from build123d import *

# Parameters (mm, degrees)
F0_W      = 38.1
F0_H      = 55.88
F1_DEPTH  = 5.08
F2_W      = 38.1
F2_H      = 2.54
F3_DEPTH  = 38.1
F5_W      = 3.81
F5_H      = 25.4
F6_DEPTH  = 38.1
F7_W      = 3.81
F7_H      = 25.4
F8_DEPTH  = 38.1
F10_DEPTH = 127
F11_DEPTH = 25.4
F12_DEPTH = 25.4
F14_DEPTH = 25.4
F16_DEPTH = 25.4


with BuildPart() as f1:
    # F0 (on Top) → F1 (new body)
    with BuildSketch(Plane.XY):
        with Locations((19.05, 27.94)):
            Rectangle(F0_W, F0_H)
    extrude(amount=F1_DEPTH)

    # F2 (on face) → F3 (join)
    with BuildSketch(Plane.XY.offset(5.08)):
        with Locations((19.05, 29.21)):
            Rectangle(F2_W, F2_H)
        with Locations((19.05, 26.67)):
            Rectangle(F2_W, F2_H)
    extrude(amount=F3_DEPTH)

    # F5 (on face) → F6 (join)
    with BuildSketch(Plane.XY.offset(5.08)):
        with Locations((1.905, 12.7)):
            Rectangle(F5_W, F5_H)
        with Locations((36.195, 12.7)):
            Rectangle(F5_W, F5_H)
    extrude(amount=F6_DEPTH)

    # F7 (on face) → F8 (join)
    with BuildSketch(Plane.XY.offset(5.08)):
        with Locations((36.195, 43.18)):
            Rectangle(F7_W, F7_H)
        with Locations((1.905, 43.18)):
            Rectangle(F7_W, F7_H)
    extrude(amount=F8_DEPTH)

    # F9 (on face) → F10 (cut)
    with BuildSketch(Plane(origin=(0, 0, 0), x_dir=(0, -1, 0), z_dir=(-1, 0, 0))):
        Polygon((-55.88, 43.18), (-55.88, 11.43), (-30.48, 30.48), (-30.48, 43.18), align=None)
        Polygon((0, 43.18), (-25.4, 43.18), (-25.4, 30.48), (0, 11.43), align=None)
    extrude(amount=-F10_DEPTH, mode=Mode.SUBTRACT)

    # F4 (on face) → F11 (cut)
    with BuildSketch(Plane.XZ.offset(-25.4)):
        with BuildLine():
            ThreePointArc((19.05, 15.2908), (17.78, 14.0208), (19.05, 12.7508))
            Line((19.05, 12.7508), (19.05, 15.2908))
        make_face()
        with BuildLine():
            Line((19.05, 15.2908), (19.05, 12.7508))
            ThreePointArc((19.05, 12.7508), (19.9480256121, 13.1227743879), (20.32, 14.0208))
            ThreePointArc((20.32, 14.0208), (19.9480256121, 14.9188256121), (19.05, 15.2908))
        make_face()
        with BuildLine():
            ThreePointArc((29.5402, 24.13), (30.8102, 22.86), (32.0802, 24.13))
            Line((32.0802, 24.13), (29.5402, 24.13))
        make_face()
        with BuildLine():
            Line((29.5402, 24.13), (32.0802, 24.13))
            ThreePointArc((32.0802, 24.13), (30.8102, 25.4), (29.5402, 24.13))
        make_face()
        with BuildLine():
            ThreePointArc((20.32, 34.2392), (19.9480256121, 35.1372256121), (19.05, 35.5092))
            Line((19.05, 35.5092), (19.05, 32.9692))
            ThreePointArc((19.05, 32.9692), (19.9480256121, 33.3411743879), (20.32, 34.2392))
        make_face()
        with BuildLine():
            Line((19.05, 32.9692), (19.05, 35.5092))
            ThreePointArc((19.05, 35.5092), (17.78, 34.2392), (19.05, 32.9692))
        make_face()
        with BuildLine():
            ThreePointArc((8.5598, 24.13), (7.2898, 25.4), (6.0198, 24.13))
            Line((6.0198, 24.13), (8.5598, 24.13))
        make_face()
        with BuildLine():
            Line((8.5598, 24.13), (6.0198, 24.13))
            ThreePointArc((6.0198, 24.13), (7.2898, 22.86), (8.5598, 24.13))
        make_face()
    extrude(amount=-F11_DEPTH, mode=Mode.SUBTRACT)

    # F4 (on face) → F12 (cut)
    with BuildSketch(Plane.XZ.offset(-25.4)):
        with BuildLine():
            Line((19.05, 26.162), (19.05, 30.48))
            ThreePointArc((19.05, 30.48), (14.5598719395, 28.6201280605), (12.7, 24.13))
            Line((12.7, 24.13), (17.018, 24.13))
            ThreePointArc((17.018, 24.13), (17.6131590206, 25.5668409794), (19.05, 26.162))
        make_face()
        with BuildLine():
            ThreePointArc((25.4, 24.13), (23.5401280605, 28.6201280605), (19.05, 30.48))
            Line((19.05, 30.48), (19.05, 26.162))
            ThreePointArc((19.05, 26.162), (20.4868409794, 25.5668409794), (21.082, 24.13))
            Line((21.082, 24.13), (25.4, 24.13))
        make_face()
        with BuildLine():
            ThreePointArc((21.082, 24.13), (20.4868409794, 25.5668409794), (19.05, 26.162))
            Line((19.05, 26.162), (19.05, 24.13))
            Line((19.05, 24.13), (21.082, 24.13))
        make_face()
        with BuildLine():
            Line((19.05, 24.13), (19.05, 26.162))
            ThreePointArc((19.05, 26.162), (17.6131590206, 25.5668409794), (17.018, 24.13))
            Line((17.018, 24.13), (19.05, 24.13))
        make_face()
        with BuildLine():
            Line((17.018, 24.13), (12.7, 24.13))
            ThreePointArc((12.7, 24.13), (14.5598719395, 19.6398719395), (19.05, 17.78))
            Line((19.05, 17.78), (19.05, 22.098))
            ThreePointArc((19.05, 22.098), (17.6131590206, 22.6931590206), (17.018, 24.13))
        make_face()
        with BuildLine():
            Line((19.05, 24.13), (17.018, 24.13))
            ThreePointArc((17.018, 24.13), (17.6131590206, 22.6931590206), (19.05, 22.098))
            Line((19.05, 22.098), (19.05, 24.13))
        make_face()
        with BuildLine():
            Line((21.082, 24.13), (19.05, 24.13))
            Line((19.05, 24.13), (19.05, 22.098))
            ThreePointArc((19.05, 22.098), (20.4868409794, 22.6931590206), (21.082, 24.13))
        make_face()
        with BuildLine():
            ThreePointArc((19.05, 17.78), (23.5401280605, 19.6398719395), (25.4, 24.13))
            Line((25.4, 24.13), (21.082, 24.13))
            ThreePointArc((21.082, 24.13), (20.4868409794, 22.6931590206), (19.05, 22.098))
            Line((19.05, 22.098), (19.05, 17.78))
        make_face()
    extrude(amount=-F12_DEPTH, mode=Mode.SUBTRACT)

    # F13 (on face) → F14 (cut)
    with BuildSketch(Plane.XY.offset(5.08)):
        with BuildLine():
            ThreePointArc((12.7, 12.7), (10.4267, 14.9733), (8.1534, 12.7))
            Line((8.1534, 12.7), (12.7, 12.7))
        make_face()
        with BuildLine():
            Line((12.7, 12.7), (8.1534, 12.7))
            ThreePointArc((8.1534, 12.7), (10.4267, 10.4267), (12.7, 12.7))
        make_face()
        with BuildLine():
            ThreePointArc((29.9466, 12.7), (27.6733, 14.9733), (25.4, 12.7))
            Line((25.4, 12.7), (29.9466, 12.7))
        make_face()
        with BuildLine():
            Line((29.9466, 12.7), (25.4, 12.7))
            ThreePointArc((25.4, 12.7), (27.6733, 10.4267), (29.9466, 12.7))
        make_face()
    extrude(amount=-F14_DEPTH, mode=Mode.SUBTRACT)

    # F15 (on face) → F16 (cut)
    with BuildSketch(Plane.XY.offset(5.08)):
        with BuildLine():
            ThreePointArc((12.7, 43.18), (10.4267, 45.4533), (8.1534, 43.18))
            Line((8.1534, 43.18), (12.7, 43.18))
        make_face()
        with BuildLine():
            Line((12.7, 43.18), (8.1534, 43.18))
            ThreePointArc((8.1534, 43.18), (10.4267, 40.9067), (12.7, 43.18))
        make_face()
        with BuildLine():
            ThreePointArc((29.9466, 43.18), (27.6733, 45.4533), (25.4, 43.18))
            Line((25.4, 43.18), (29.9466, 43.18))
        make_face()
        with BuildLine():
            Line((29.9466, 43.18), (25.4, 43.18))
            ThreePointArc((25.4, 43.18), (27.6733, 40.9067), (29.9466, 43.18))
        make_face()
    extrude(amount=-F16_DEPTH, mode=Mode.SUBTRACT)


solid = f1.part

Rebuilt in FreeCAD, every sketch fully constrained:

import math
import FreeCAD as App
import Part
import Sketcher

V = App.Vector
Q = App.Units.Quantity


def add_polygon(sketch, points):
    """Adds a closed chain of lines whose ends are joined by coincident constraints."""
    first, n = sketch.GeometryCount, len(points)
    for a, b in zip(points, points[1:] + points[:1]):
        sketch.addGeometry(Part.LineSegment(App.Vector(*a, 0), App.Vector(*b, 0)), False)
    for i in range(n):
        sketch.addConstraint(Sketcher.Constraint("Coincident", first + i, 2, first + (i + 1) % n, 1))

doc = App.newDocument("Part")
body = doc.addObject("PartDesign::Body", "Body")

sketch1 = doc.addObject("Sketcher::SketchObject", "Sketch")
body.addObject(sketch1)
sketch1.AttachmentSupport = (doc.XY_Plane, [""])
sketch1.MapMode = "FlatFace"
add_polygon(sketch1, [(0, 56), (0, 0), (38, 0), (38, 56)])
sketch1.addConstraint(Sketcher.Constraint("Vertical", 0))
sketch1.addConstraint(Sketcher.Constraint("Horizontal", 1))
sketch1.addConstraint(Sketcher.Constraint("Vertical", 2))
sketch1.addConstraint(Sketcher.Constraint("Horizontal", 3))
sketch1.addConstraint(Sketcher.Constraint("Coincident", 0, 2, -1, 1))
sketch1.addConstraint(Sketcher.Constraint("DistanceX", 1, 1, 1, 2, Q("1.5 in")))
sketch1.addConstraint(Sketcher.Constraint("DistanceY", 0, 2, 0, 1, Q("2.2 in")))
pad1 = doc.addObject("PartDesign::Pad", "Pad")
body.addObject(pad1)
pad1.Profile = sketch1
pad1.Length = Q("0.2 in")

sketch2 = doc.addObject("Sketcher::SketchObject", "Sketch001")
body.addObject(sketch2)
sketch2.AttachmentSupport = (doc.XY_Plane, [""])
sketch2.MapMode = "FlatFace"
sketch2.AttachmentOffset = App.Placement(V(0, 0, 0.2 * 25.4), App.Rotation())
add_polygon(sketch2, [(0, 30), (0, 25), (38, 25), (38, 30)])
sketch2.addConstraint(Sketcher.Constraint("Vertical", 0))
sketch2.addConstraint(Sketcher.Constraint("Horizontal", 1))
sketch2.addConstraint(Sketcher.Constraint("Vertical", 2))
sketch2.addConstraint(Sketcher.Constraint("Horizontal", 3))
sketch2.addConstraint(Sketcher.Constraint("PointOnObject", 0, 2, -2))
sketch2.addConstraint(Sketcher.Constraint("DistanceX", 1, 1, 1, 2, Q("1.5 in")))
sketch2.addConstraint(Sketcher.Constraint("DistanceY", 0, 2, 0, 1, Q("0.2 in")))
sketch2.addConstraint(Sketcher.Constraint("DistanceY", -1, 1, 0, 2, Q("1 in")))
pad2 = doc.addObject("PartDesign::Pad", "Pad001")
body.addObject(pad2)
pad2.Profile = sketch2
pad2.Length = Q("1.5 in")

sketch3 = doc.addObject("Sketcher::SketchObject", "Sketch002")
body.addObject(sketch3)
sketch3.AttachmentSupport = (doc.XY_Plane, [""])
sketch3.MapMode = "FlatFace"
sketch3.AttachmentOffset = App.Placement(V(0, 0, 0.2 * 25.4), App.Rotation())
add_polygon(sketch3, [(0, 25.4), (0, 0), (3.8, 0), (3.8, 25.4)])
add_polygon(sketch3, [(34.3, 25.4), (34.3, 0), (38.1, 0), (38.1, 25.4)])
sketch3.addConstraint(Sketcher.Constraint("Vertical", 0))
sketch3.addConstraint(Sketcher.Constraint("Horizontal", 1))
sketch3.addConstraint(Sketcher.Constraint("Vertical", 2))
sketch3.addConstraint(Sketcher.Constraint("Horizontal", 3))
sketch3.addConstraint(Sketcher.Constraint("Vertical", 4))
sketch3.addConstraint(Sketcher.Constraint("Horizontal", 5))
sketch3.addConstraint(Sketcher.Constraint("Vertical", 6))
sketch3.addConstraint(Sketcher.Constraint("Horizontal", 7))
sketch3.addConstraint(Sketcher.Constraint("Coincident", 0, 2, -1, 1))
sketch3.addConstraint(Sketcher.Constraint("PointOnObject", 4, 2, -1))
sketch3.addConstraint(Sketcher.Constraint("Horizontal", 3, 2, 6, 2))
sketch3.addConstraint(Sketcher.Constraint("Equal", 3, 5))
sketch3.addConstraint(Sketcher.Constraint("DistanceY", 0, 2, 0, 1, Q("1 in")))
sketch3.addConstraint(Sketcher.Constraint("DistanceX", 1, 1, 1, 2, Q("0.15 in")))
sketch3.addConstraint(Sketcher.Constraint("DistanceX", -1, 1, 5, 2, Q("1.5 in")))
pad3 = doc.addObject("PartDesign::Pad", "Pad002")
body.addObject(pad3)
pad3.Profile = sketch3
pad3.Length = Q("1.5 in")

sketch4 = doc.addObject("Sketcher::SketchObject", "Sketch003")
body.addObject(sketch4)
sketch4.AttachmentSupport = (doc.XY_Plane, [""])
sketch4.MapMode = "FlatFace"
sketch4.AttachmentOffset = App.Placement(V(0, 0, 0.2 * 25.4), App.Rotation())
add_polygon(sketch4, [(34.3, 55.9), (34.3, 30.5), (38.1, 30.5), (38.1, 55.9)])
add_polygon(sketch4, [(0, 55.9), (0, 30.5), (3.8, 30.5), (3.8, 55.9)])
sketch4.addConstraint(Sketcher.Constraint("Vertical", 0))
sketch4.addConstraint(Sketcher.Constraint("Horizontal", 1))
sketch4.addConstraint(Sketcher.Constraint("Vertical", 2))
sketch4.addConstraint(Sketcher.Constraint("Horizontal", 3))
sketch4.addConstraint(Sketcher.Constraint("Vertical", 4))
sketch4.addConstraint(Sketcher.Constraint("Horizontal", 5))
sketch4.addConstraint(Sketcher.Constraint("Vertical", 6))
sketch4.addConstraint(Sketcher.Constraint("Horizontal", 7))
sketch4.addConstraint(Sketcher.Constraint("PointOnObject", 4, 2, -2))
sketch4.addConstraint(Sketcher.Constraint("Horizontal", 1, 2, 4, 2))
sketch4.addConstraint(Sketcher.Constraint("Horizontal", 3, 2, 6, 2))
sketch4.addConstraint(Sketcher.Constraint("Equal", 3, 5))
sketch4.addConstraint(Sketcher.Constraint("DistanceY", 0, 2, 0, 1, Q("1 in")))
sketch4.addConstraint(Sketcher.Constraint("DistanceX", 1, 1, 1, 2, Q("0.15 in")))
sketch4.addConstraint(Sketcher.Constraint("DistanceY", -1, 1, 0, 2, Q("1.2 in")))
sketch4.addConstraint(Sketcher.Constraint("DistanceX", -1, 1, 1, 2, Q("1.5 in")))
pad4 = doc.addObject("PartDesign::Pad", "Pad003")
body.addObject(pad4)
pad4.Profile = sketch4
pad4.Length = Q("1.5 in")

sketch5 = doc.addObject("Sketcher::SketchObject", "Sketch004")
body.addObject(sketch5)
sketch5.AttachmentSupport = (doc.YZ_Plane, [""])
sketch5.MapMode = "FlatFace"
add_polygon(sketch5, [(56, 43), (56, 11), (30, 30), (30, 43)])
add_polygon(sketch5, [(0, 43), (25, 43), (25, 30), (0, 11)])
sketch5.addConstraint(Sketcher.Constraint("Vertical", 0))
sketch5.addConstraint(Sketcher.Constraint("Vertical", 2))
sketch5.addConstraint(Sketcher.Constraint("Horizontal", 3))
sketch5.addConstraint(Sketcher.Constraint("Horizontal", 4))
sketch5.addConstraint(Sketcher.Constraint("Vertical", 5))
sketch5.addConstraint(Sketcher.Constraint("Vertical", 7))
sketch5.addConstraint(Sketcher.Constraint("PointOnObject", 6, 2, -2))
sketch5.addConstraint(Sketcher.Constraint("Horizontal", 3, 2, 4, 2))
sketch5.addConstraint(Sketcher.Constraint("Horizontal", 1, 2, 5, 2))
sketch5.addConstraint(Sketcher.Constraint("Horizontal", 0, 2, 6, 2))
sketch5.addConstraint(Sketcher.Constraint("Equal", 3, 4))
sketch5.addConstraint(Sketcher.Constraint("DistanceX", 3, 1, 3, 2, Q("1 in")))
sketch5.addConstraint(Sketcher.Constraint("DistanceY", 2, 1, 2, 2, Q("0.5 in")))
sketch5.addConstraint(Sketcher.Constraint("DistanceY", 0, 2, 0, 1, Q("1.25 in")))
sketch5.addConstraint(Sketcher.Constraint("DistanceX", -1, 1, 0, 2, Q("2.2 in")))
sketch5.addConstraint(Sketcher.Constraint("DistanceY", -1, 1, 1, 2, Q("1.2 in")))
pocket1 = doc.addObject("PartDesign::Pocket", "Pocket")
body.addObject(pocket1)
pocket1.Profile = sketch5
pocket1.Length = Q("5 in")
pocket1.Reversed = True

sketch6 = doc.addObject("Sketcher::SketchObject", "Sketch005")
body.addObject(sketch6)
sketch6.AttachmentSupport = (doc.XZ_Plane, [""])
sketch6.MapMode = "FlatFace"
sketch6.AttachmentOffset = App.Placement(V(0, 0, -1 * 25.4), App.Rotation())
sketch6.addGeometry(Part.ArcOfCircle(Part.Circle(V(19.1, 14, 0), V(0, 0, 1), 1.3), math.radians(90), math.radians(270)), False)
sketch6.addGeometry(Part.ArcOfCircle(Part.Circle(V(19.1, 14, 0), V(0, 0, 1), 1.3), math.radians(-90), math.radians(0)), False)
sketch6.addGeometry(Part.ArcOfCircle(Part.Circle(V(19.1, 14, 0), V(0, 0, 1), 1.3), math.radians(0), math.radians(90)), False)
sketch6.addGeometry(Part.Circle(V(30.8, 24.1, 0), V(0, 0, 1), 1.3), False)
sketch6.addGeometry(Part.ArcOfCircle(Part.Circle(V(19.1, 34.2, 0), V(0, 0, 1), 1.3), math.radians(0), math.radians(90)), False)
sketch6.addGeometry(Part.ArcOfCircle(Part.Circle(V(19.1, 34.2, 0), V(0, 0, 1), 1.3), math.radians(90), math.radians(270)), False)
sketch6.addGeometry(Part.ArcOfCircle(Part.Circle(V(19.1, 34.2, 0), V(0, 0, 1), 1.3), math.radians(-90), math.radians(0)), False)
sketch6.addGeometry(Part.Circle(V(7.3, 24.1, 0), V(0, 0, 1), 1.3), False)
sketch6.addConstraint(Sketcher.Constraint("Tangent", 0, 2, 1, 1))
sketch6.addConstraint(Sketcher.Constraint("Tangent", 1, 2, 2, 1))
sketch6.addConstraint(Sketcher.Constraint("Tangent", 2, 2, 0, 1))
sketch6.addConstraint(Sketcher.Constraint("Tangent", 4, 2, 5, 1))
sketch6.addConstraint(Sketcher.Constraint("Tangent", 5, 2, 6, 1))
sketch6.addConstraint(Sketcher.Constraint("Tangent", 6, 2, 4, 1))
sketch6.addConstraint(Sketcher.Constraint("Equal", 2, 3))
sketch6.addConstraint(Sketcher.Constraint("Equal", 3, 4))
sketch6.addConstraint(Sketcher.Constraint("Equal", 6, 7))
sketch6.addConstraint(Sketcher.Constraint("Horizontal", 3, 3, 7, 3))
sketch6.addConstraint(Sketcher.Constraint("Horizontal", 2, 3, 1, 2))
sketch6.addConstraint(Sketcher.Constraint("Horizontal", 5, 3, 6, 2))
sketch6.addConstraint(Sketcher.Constraint("Vertical", 2, 3, 4, 3))
sketch6.addConstraint(Sketcher.Constraint("Vertical", 6, 3, 0, 2))
sketch6.addConstraint(Sketcher.Constraint("Vertical", 0, 2, 2, 2))
sketch6.addConstraint(Sketcher.Constraint("Vertical", 2, 2, 4, 2))
sketch6.addConstraint(Sketcher.Constraint("Vertical", 4, 2, 5, 2))
sketch6.addConstraint(Sketcher.Constraint("Diameter", 3, Q("0.1 in")))
sketch6.addConstraint(Sketcher.Constraint("DistanceX", -1, 1, 1, 2, Q("0.8 in")))
sketch6.addConstraint(Sketcher.Constraint("DistanceY", -1, 1, 3, 3, Q("0.95 in")))
sketch6.addConstraint(Sketcher.Constraint("DistanceY", -1, 1, 0, 3, Q("0.552 in")))
sketch6.addConstraint(Sketcher.Constraint("DistanceX", -1, 1, 3, 3, Q("1.213 in")))
sketch6.addConstraint(Sketcher.Constraint("DistanceY", -1, 1, 4, 3, Q("1.348 in")))
sketch6.addConstraint(Sketcher.Constraint("DistanceX", -1, 1, 7, 3, Q("0.287 in")))
pocket2 = doc.addObject("PartDesign::Pocket", "Pocket001")
body.addObject(pocket2)
pocket2.Profile = sketch6
pocket2.Length = Q("1 in")

sketch7 = doc.addObject("Sketcher::SketchObject", "Sketch006")
body.addObject(sketch7)
sketch7.AttachmentSupport = (doc.XZ_Plane, [""])
sketch7.MapMode = "FlatFace"
sketch7.AttachmentOffset = App.Placement(V(0, 0, -1 * 25.4), App.Rotation())
sketch7.addGeometry(Part.ArcOfCircle(Part.Circle(V(19, 24, 0), V(0, 0, 1), 6), math.radians(90), math.radians(180)), False)
sketch7.addGeometry(Part.ArcOfCircle(Part.Circle(V(19, 24, 0), V(0, 0, 1), 6), math.radians(180), math.radians(270)), False)
sketch7.addGeometry(Part.ArcOfCircle(Part.Circle(V(19, 24, 0), V(0, 0, 1), 6), math.radians(-90), math.radians(0)), False)
sketch7.addGeometry(Part.ArcOfCircle(Part.Circle(V(19, 24, 0), V(0, 0, 1), 6), math.radians(0), math.radians(90)), False)
sketch7.addConstraint(Sketcher.Constraint("Tangent", 0, 2, 1, 1))
sketch7.addConstraint(Sketcher.Constraint("Tangent", 1, 2, 2, 1))
sketch7.addConstraint(Sketcher.Constraint("Tangent", 2, 2, 3, 1))
sketch7.addConstraint(Sketcher.Constraint("Tangent", 3, 2, 0, 1))
sketch7.addConstraint(Sketcher.Constraint("Equal", 0, 1))
sketch7.addConstraint(Sketcher.Constraint("Horizontal", 3, 3, 0, 2))
sketch7.addConstraint(Sketcher.Constraint("Horizontal", 0, 2, 2, 2))
sketch7.addConstraint(Sketcher.Constraint("Vertical", 3, 3, 1, 2))
sketch7.addConstraint(Sketcher.Constraint("Vertical", 1, 2, 3, 2))
sketch7.addConstraint(Sketcher.Constraint("Radius", 0, Q("0.25 in")))
sketch7.addConstraint(Sketcher.Constraint("DistanceX", -1, 1, 2, 2, Q("1 in")))
sketch7.addConstraint(Sketcher.Constraint("DistanceY", -1, 1, 1, 2, Q("0.7 in")))
pocket3 = doc.addObject("PartDesign::Pocket", "Pocket002")
body.addObject(pocket3)
pocket3.Profile = sketch7
pocket3.Length = Q("1 in")

sketch8 = doc.addObject("Sketcher::SketchObject", "Sketch007")
body.addObject(sketch8)
sketch8.AttachmentSupport = (doc.XY_Plane, [""])
sketch8.MapMode = "FlatFace"
sketch8.AttachmentOffset = App.Placement(V(0, 0, 0.2 * 25.4), App.Rotation())
sketch8.addGeometry(Part.Circle(V(10.4, 12.7, 0), V(0, 0, 1), 2.3), False)
sketch8.addGeometry(Part.Circle(V(27.7, 12.7, 0), V(0, 0, 1), 2.3), False)
sketch8.addConstraint(Sketcher.Constraint("Equal", 0, 1))
sketch8.addConstraint(Sketcher.Constraint("Horizontal", 0, 3, 1, 3))
sketch8.addConstraint(Sketcher.Constraint("Diameter", 0, Q("0.179 in")))
sketch8.addConstraint(Sketcher.Constraint("DistanceY", -1, 1, 0, 3, Q("0.5 in")))
sketch8.addConstraint(Sketcher.Constraint("DistanceX", 0, 3, 1, 3, Q("0.679 in")))
sketch8.addConstraint(Sketcher.Constraint("DistanceX", -1, 1, 0, 3, Q("0.4105 in")))
pocket4 = doc.addObject("PartDesign::Pocket", "Pocket003")
body.addObject(pocket4)
pocket4.Profile = sketch8
pocket4.Length = Q("1 in")

sketch9 = doc.addObject("Sketcher::SketchObject", "Sketch008")
body.addObject(sketch9)
sketch9.AttachmentSupport = (doc.XY_Plane, [""])
sketch9.MapMode = "FlatFace"
sketch9.AttachmentOffset = App.Placement(V(0, 0, 0.2 * 25.4), App.Rotation())
sketch9.addGeometry(Part.Circle(V(10.4, 43.2, 0), V(0, 0, 1), 2.3), False)
sketch9.addGeometry(Part.Circle(V(27.7, 43.2, 0), V(0, 0, 1), 2.3), False)
sketch9.addConstraint(Sketcher.Constraint("Equal", 0, 1))
sketch9.addConstraint(Sketcher.Constraint("Horizontal", 0, 3, 1, 3))
sketch9.addConstraint(Sketcher.Constraint("Diameter", 0, Q("0.179 in")))
sketch9.addConstraint(Sketcher.Constraint("DistanceY", -1, 1, 0, 3, Q("1.7 in")))
sketch9.addConstraint(Sketcher.Constraint("DistanceX", 0, 3, 1, 3, Q("0.679 in")))
sketch9.addConstraint(Sketcher.Constraint("DistanceX", -1, 1, 0, 3, Q("0.4105 in")))
pocket5 = doc.addObject("PartDesign::Pocket", "Pocket004")
body.addObject(pocket5)
pocket5.Profile = sketch9
pocket5.Length = Q("1 in")

doc.recompute()
